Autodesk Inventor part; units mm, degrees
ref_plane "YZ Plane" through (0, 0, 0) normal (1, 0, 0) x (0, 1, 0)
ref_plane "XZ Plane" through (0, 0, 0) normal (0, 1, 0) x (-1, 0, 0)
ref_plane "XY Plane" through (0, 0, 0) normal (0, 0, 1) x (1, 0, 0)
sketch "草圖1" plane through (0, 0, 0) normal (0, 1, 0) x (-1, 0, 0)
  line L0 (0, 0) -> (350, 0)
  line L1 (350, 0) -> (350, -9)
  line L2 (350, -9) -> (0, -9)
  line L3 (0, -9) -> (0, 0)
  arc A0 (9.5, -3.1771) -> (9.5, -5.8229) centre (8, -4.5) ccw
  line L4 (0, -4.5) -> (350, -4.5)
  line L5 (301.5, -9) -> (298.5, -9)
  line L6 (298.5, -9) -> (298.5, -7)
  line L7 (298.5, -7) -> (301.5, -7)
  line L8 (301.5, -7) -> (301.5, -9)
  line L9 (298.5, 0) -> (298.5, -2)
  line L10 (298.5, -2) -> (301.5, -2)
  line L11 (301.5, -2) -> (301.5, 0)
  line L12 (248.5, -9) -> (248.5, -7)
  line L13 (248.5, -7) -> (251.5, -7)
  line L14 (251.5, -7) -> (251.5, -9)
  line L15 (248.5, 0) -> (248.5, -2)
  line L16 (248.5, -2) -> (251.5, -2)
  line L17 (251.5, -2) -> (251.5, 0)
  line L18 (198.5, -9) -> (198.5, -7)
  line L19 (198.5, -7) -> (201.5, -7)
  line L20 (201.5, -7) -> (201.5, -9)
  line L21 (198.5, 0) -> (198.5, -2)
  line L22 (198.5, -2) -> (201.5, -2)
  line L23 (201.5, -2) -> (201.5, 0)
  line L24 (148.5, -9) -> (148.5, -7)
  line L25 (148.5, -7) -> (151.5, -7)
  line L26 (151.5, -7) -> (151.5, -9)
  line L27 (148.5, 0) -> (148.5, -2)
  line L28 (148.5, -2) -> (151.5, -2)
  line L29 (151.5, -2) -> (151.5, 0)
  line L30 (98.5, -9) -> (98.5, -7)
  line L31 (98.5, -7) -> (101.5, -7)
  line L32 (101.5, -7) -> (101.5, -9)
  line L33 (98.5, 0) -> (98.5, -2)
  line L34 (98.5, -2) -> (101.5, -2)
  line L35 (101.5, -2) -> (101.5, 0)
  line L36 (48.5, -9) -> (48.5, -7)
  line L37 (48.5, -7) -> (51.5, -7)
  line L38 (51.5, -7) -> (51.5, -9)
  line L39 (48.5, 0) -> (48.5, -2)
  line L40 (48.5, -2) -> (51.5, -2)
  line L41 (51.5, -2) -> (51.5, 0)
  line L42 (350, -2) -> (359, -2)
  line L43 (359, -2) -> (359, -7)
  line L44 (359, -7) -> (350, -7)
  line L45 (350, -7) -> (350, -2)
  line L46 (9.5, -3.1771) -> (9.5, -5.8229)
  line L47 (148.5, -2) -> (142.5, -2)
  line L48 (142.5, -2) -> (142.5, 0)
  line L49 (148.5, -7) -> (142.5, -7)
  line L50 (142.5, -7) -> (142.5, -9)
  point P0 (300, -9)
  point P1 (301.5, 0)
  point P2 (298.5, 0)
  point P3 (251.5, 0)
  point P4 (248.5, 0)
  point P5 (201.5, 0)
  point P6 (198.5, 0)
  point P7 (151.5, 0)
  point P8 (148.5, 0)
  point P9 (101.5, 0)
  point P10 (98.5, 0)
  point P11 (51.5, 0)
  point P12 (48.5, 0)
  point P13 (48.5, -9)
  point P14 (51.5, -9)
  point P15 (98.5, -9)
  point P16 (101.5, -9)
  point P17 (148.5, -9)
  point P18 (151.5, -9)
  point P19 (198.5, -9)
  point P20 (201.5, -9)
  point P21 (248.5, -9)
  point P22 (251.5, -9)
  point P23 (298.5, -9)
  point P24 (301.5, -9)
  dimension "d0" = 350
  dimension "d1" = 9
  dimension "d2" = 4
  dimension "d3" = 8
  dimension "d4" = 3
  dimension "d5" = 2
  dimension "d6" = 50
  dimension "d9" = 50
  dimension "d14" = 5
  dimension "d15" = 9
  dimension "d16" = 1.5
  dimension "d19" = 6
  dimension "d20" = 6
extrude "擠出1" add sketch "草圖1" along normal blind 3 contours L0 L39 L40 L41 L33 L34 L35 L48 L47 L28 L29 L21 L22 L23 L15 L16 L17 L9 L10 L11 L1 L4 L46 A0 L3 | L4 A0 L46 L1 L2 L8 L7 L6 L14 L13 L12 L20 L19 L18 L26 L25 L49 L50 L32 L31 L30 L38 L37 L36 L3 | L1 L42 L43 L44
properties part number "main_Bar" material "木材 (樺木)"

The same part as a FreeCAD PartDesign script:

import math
import FreeCAD as App
import Part
import Sketcher
from FreeCAD import Vector
Q = App.Units.Quantity


def add_polygon(sketch, points):
    """Adds a closed chain of lines whose ends are joined by coincident constraints."""
    first, n = sketch.GeometryCount, len(points)
    for a, b in zip(points, points[1:] + points[:1]):
        sketch.addGeometry(Part.LineSegment(App.Vector(*a, 0), App.Vector(*b, 0)), False)
    for i in range(n):
        sketch.addConstraint(Sketcher.Constraint("Coincident", first + i, 2, first + (i + 1) % n, 1))

doc = App.newDocument("Part")
body = doc.addObject("PartDesign::Body", "Body")

sketch1 = doc.addObject("Sketcher::SketchObject", "Sketch")
body.addObject(sketch1)
sketch1.AttachmentSupport = (doc.XZ_Plane, [""])
sketch1.MapMode = "FlatFace"
add_polygon(sketch1, [(-48.5, 0), (0, 0), (0, -9), (-48.5, -9), (-48.5, -7), (-51.5, -7), (-51.5, -9), (-98.5, -9), (-98.5, -7), (-101.5, -7), (-101.5, -9), (-142.5, -9), (-142.5, -7), (-151.5, -7), (-151.5, -9), (-198.5, -9), (-198.5, -7), (-201.5, -7), (-201.5, -9), (-248.5, -9), (-248.5, -7), (-251.5, -7), (-251.5, -9), (-298.5, -9), (-298.5, -7), (-301.5, -7), (-301.5, -9), (-350, -9), (-350, -7), (-359, -7), (-359, -2), (-350, -2), (-350, 0), (-301.5, 0), (-301.5, -2), (-298.5, -2), (-298.5, 0), (-251.5, 0), (-251.5, -2), (-248.5, -2), (-248.5, 0), (-201.5, 0), (-201.5, -2), (-198.5, -2), (-198.5, 0), (-151.5, 0), (-151.5, -2), (-142.5, -2), (-142.5, 0), (-101.5, 0), (-101.5, -2), (-98.5, -2), (-98.5, 0), (-51.5, 0), (-51.5, -2), (-48.5, -2)])
sketch1.addGeometry(Part.LineSegment(Vector(-9.5, -3.2, 0), Vector(-9.5, -5.8, 0)), False)
sketch1.addGeometry(Part.ArcOfCircle(Part.Circle(Vector(-8, -4.5, 0), Vector(0, 0, 1), 2), math.radians(-139), math.radians(139)), False)
sketch1.addConstraint([
    Sketcher.Constraint("Coincident", 56, 1, 57, 2),
    Sketcher.Constraint("Coincident", 57, 1, 56, 2),
    Sketcher.Constraint("Horizontal", 0),
    Sketcher.Constraint("Vertical", 1),
    Sketcher.Constraint("Horizontal", 2),
    Sketcher.Constraint("Vertical", 3),
    Sketcher.Constraint("Horizontal", 4),
    Sketcher.Constraint("Vertical", 5),
    Sketcher.Constraint("Horizontal", 6),
    Sketcher.Constraint("Vertical", 7),
    Sketcher.Constraint("Horizontal", 8),
    Sketcher.Constraint("Vertical", 9),
    Sketcher.Constraint("Horizontal", 10),
    Sketcher.Constraint("Vertical", 11),
    Sketcher.Constraint("Horizontal", 12),
    Sketcher.Constraint("Vertical", 13),
    Sketcher.Constraint("Horizontal", 14),
    Sketcher.Constraint("Vertical", 15),
    Sketcher.Constraint("Horizontal", 16),
    Sketcher.Constraint("Vertical", 17),
    Sketcher.Constraint("Horizontal", 18),
    Sketcher.Constraint("Vertical", 19),
    Sketcher.Constraint("Horizontal", 20),
    Sketcher.Constraint("Vertical", 21),
    Sketcher.Constraint("Horizontal", 22),
    Sketcher.Constraint("Vertical", 23),
    Sketcher.Constraint("Horizontal", 24),
    Sketcher.Constraint("Vertical", 25),
    Sketcher.Constraint("Horizontal", 26),
    Sketcher.Constraint("Vertical", 27),
    Sketcher.Constraint("Horizontal", 28),
    Sketcher.Constraint("Vertical", 29),
    Sketcher.Constraint("Horizontal", 30),
    Sketcher.Constraint("Vertical", 31),
    Sketcher.Constraint("Horizontal", 32),
    Sketcher.Constraint("Vertical", 33),
    Sketcher.Constraint("Horizontal", 34),
    Sketcher.Constraint("Vertical", 35),
    Sketcher.Constraint("Horizontal", 36),
    Sketcher.Constraint("Vertical", 37),
    Sketcher.Constraint("Horizontal", 38),
    Sketcher.Constraint("Vertical", 39),
    Sketcher.Constraint("Horizontal", 40),
    Sketcher.Constraint("Vertical", 41),
    Sketcher.Constraint("Horizontal", 42),
    Sketcher.Constraint("Vertical", 43),
    Sketcher.Constraint("Horizontal", 44),
    Sketcher.Constraint("Vertical", 45),
    Sketcher.Constraint("Horizontal", 46),
    Sketcher.Constraint("Vertical", 47),
    Sketcher.Constraint("Horizontal", 48),
    Sketcher.Constraint("Vertical", 49),
    Sketcher.Constraint("Horizontal", 50),
    Sketcher.Constraint("Vertical", 51),
    Sketcher.Constraint("Horizontal", 52),
    Sketcher.Constraint("Vertical", 53),
    Sketcher.Constraint("Horizontal", 54),
    Sketcher.Constraint("Vertical", 55),
    Sketcher.Constraint("Vertical", 56),
    Sketcher.Constraint("Coincident", 0, 2, -1, 1),
    Sketcher.Constraint("PointOnObject", 31, 2, -1),
    Sketcher.Constraint("PointOnObject", 35, 2, -1),
    Sketcher.Constraint("PointOnObject", 39, 2, -1),
    Sketcher.Constraint("PointOnObject", 43, 2, -1),
    Sketcher.Constraint("PointOnObject", 47, 2, -1),
    Sketcher.Constraint("PointOnObject", 51, 2, -1),
    Sketcher.Constraint("Horizontal", 2, 2, 5, 2),
    Sketcher.Constraint("Horizontal", 4, 2, 7, 2),
    Sketcher.Constraint("Horizontal", 6, 2, 9, 2),
    Sketcher.Constraint("Horizontal", 8, 2, 11, 2),
    Sketcher.Constraint("Horizontal", 10, 2, 13, 2),
    Sketcher.Constraint("Horizontal", 12, 2, 15, 2),
    Sketcher.Constraint("Horizontal", 14, 2, 17, 2),
    Sketcher.Constraint("Horizontal", 16, 2, 19, 2),
    Sketcher.Constraint("Horizontal", 18, 2, 21, 2),
    Sketcher.Constraint("Horizontal", 20, 2, 23, 2),
    Sketcher.Constraint("Horizontal", 22, 2, 25, 2),
    Sketcher.Constraint("Horizontal", 24, 2, 27, 2),
    Sketcher.Constraint("Horizontal", 30, 2, 33, 2),
    Sketcher.Constraint("Horizontal", 34, 2, 37, 2),
    Sketcher.Constraint("Horizontal", 38, 2, 41, 2),
    Sketcher.Constraint("Horizontal", 42, 2, 45, 2),
    Sketcher.Constraint("Horizontal", 46, 2, 49, 2),
    Sketcher.Constraint("Horizontal", 50, 2, 53, 2),
    Sketcher.Constraint("Vertical", 27, 2, 30, 2),
    Sketcher.Constraint("Vertical", 25, 2, 32, 2),
    Sketcher.Constraint("Vertical", 23, 2, 34, 2),
    Sketcher.Constraint("Vertical", 21, 2, 36, 2),
    Sketcher.Constraint("Vertical", 19, 2, 38, 2),
    Sketcher.Constraint("Vertical", 17, 2, 40, 2),
    Sketcher.Constraint("Vertical", 15, 2, 42, 2),
    Sketcher.Constraint("Vertical", 13, 2, 44, 2),
    Sketcher.Constraint("Vertical", 11, 2, 46, 2),
    Sketcher.Constraint("Vertical", 9, 2, 48, 2),
    Sketcher.Constraint("Vertical", 7, 2, 50, 2),
    Sketcher.Constraint("Vertical", 5, 2, 52, 2),
    Sketcher.Constraint("Vertical", 3, 2, 54, 2),
    Sketcher.Constraint("Equal", 4, 8),
    Sketcher.Constraint("Equal", 6, 14),
    Sketcher.Constraint("Equal", 8, 16),
    Sketcher.Constraint("Equal", 14, 18),
    Sketcher.Constraint("Equal", 16, 20),
    Sketcher.Constraint("Equal", 18, 22),
    Sketcher.Constraint("Equal", 20, 24),
    Sketcher.Constraint("Equal", 2, 26),
    Sketcher.Constraint("Equal", 12, 28),
    Sketcher.Constraint("Equal", 46, 1),
    Sketcher.Constraint("Equal", 27, 31),
    Sketcher.Constraint("Radius", 57, Q("2 mm")),
    Sketcher.Constraint("DistanceX", 4, 2, 4, 1, Q("3 mm")),
    Sketcher.Constraint("DistanceX", 12, 2, 12, 1, Q("9 mm")),
    Sketcher.Constraint("DistanceY", 3, 1, 3, 2, Q("2 mm")),
    Sketcher.Constraint("DistanceX", 57, 3, -1, 1, Q("8 mm")),
    Sketcher.Constraint("DistanceX", 26, 2, -1, 1, Q("350 mm")),
    Sketcher.Constraint("DistanceX", 6, 2, 2, 2, Q("50 mm")),
    Sketcher.Constraint("DistanceX", 12, 2, 8, 2, Q("50 mm")),
    Sketcher.Constraint("DistanceX", 56, 1, 57, 3, Q("1.5 mm")),
    Sketcher.Constraint("DistanceY", 57, 3, -1, 1, Q("4.5 mm")),
])
pad1 = doc.addObject("PartDesign::Pad", "Pad")
body.addObject(pad1)
pad1.Profile = sketch1
pad1.Length = 3
pad1.Reversed = True

doc.recompute()
